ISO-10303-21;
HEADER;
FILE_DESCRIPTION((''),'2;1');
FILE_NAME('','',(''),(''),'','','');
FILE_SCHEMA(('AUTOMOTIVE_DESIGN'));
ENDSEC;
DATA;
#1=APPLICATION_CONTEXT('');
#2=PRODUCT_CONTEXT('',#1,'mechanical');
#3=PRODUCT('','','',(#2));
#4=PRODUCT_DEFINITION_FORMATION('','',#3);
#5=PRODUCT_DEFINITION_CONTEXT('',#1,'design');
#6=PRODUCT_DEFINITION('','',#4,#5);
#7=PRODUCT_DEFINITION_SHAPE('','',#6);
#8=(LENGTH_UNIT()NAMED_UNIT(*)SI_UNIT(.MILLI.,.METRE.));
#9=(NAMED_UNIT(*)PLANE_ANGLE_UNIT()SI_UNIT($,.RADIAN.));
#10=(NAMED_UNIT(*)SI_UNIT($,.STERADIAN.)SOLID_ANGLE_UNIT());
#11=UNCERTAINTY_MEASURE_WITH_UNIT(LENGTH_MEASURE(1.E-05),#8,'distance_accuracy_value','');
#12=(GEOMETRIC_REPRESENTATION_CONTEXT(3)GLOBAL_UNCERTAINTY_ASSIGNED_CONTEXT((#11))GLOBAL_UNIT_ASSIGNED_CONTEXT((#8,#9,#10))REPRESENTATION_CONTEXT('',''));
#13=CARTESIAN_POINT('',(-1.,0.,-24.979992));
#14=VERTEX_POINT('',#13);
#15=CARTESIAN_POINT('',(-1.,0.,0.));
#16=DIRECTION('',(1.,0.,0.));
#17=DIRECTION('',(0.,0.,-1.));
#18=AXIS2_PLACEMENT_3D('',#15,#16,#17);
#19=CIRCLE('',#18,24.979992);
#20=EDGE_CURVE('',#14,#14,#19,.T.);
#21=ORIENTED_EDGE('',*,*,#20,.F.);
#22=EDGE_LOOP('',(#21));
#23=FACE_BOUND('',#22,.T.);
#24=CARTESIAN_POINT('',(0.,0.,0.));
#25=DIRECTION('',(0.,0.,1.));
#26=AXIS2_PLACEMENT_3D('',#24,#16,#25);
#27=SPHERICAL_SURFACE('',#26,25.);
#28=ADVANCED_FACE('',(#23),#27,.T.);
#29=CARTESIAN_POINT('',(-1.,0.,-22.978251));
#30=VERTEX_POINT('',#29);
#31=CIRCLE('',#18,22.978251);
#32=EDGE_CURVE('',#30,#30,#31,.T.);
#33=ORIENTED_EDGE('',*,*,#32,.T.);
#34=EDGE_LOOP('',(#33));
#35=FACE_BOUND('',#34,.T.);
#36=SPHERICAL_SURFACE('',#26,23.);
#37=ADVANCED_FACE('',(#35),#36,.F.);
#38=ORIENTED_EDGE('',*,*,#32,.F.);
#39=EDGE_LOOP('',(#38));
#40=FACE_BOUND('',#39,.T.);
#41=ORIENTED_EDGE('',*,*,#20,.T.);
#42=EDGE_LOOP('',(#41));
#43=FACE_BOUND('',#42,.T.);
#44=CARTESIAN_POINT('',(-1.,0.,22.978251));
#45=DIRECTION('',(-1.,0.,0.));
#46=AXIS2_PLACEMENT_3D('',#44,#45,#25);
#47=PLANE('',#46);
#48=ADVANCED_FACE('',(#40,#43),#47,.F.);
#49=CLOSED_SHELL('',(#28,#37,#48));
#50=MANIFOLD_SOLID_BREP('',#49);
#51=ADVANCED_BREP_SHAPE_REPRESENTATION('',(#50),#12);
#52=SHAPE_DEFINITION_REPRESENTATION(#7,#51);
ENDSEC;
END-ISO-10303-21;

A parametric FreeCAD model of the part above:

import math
import FreeCAD as App
import Part
import Sketcher

doc = App.newDocument("Part")
body = doc.addObject("PartDesign::Body", "Body")

sketch1 = doc.addObject("Sketcher::SketchObject", "Sketch")
body.addObject(sketch1)
sketch1.AttachmentSupport = (doc.XZ_Plane, [""])
sketch1.MapMode = "FlatFace"
sketch1.addGeometry([
    Part.LineSegment(App.Vector(-23, 0, 0), App.Vector(-25, 0, 0)),
    Part.ArcOfCircle(Part.Circle(App.Vector(0, 0, 0), App.Vector(0, 0, 1), 25), math.radians(92.292443), math.radians(180)),
    Part.LineSegment(App.Vector(-1, 24.979992, 0), App.Vector(-1, 22.978251, 0)),
    Part.ArcOfCircle(Part.Circle(App.Vector(0, 0, 0), App.Vector(0, 0, 1), 23), math.radians(92.491906), math.radians(180)),
], False)
sketch1.addConstraint([
    Sketcher.Constraint("Coincident", 0, 2, 1, 2),
    Sketcher.Constraint("Coincident", 1, 1, 2, 1),
    Sketcher.Constraint("Coincident", 2, 2, 3, 1),
    Sketcher.Constraint("Coincident", 3, 2, 0, 1),
    Sketcher.Constraint("Horizontal", 0),
    Sketcher.Constraint("Vertical", 2),
    Sketcher.Constraint("Coincident", 1, 3, -1, 1),
    Sketcher.Constraint("Coincident", 3, 3, -1, 1),
    Sketcher.Constraint("PointOnObject", 0, 2, -1),
    Sketcher.Constraint("Radius", 1, 25.0),
    Sketcher.Constraint("Radius", 3, 23.0),
    Sketcher.Constraint("DistanceX", 1, 1, -1, 1, 1.0),
])
revolution = doc.addObject("PartDesign::Revolution", "Revolution")
body.addObject(revolution)
revolution.Profile = sketch1
revolution.ReferenceAxis = (sketch1, ["H_Axis"])
revolution.Angle = 360

doc.recompute()
